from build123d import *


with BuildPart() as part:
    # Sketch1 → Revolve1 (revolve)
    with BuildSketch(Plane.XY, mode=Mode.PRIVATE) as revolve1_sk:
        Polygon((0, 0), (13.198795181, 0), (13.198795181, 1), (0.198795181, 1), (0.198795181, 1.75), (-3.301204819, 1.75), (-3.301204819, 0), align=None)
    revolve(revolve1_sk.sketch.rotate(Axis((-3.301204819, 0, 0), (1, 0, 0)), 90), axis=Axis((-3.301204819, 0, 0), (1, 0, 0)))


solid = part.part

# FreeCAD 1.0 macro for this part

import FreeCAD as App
import Part
import Sketcher
from FreeCAD import Vector
Q = App.Units.Quantity


def add_polygon(sketch, points):
    """Adds a closed chain of lines whose ends are joined by coincident constraints."""
    first, n = sketch.GeometryCount, len(points)
    for a, b in zip(points, points[1:] + points[:1]):
        sketch.addGeometry(Part.LineSegment(App.Vector(*a, 0), App.Vector(*b, 0)), False)
    for i in range(n):
        sketch.addConstraint(Sketcher.Constraint("Coincident", first + i, 2, first + (i + 1) % n, 1))

doc = App.newDocument("Part")
body = doc.addObject("PartDesign::Body", "Body")

sketch1 = body.newObject("Sketcher::SketchObject", "Sketch")
sketch1.AttachmentSupport = (doc.getObject("XY_Plane"), [""])
sketch1.MapMode = "FlatFace"
add_polygon(sketch1, [(13.2, 0), (13.2, 1), (0.2, 1), (0.2, 1.8), (-3.3, 1.8), (-3.3, 0)])
sketch1.addConstraint([
    Sketcher.Constraint("Vertical", 0),
    Sketcher.Constraint("Horizontal", 1),
    Sketcher.Constraint("Vertical", 2),
    Sketcher.Constraint("Horizontal", 3),
    Sketcher.Constraint("Vertical", 4),
    Sketcher.Constraint("Horizontal", 5),
    Sketcher.Constraint("PointOnObject", 4, 2, -1),
    Sketcher.Constraint("DistanceX", 1, 2, 1, 1, Q("13 mm")),
    Sketcher.Constraint("DistanceY", 0, 1, 0, 2, Q("1 mm")),
    Sketcher.Constraint("DistanceX", 3, 2, 3, 1, Q("3.5 mm")),
    Sketcher.Constraint("DistanceY", 2, 1, 2, 2, Q("0.75 mm")),
    Sketcher.Constraint("DistanceX", -1, 1, 0, 2, Q("13.198795 mm")),
])
revolution = body.newObject("PartDesign::Revolution", "Revolution")
revolution.Profile = sketch1
revolution.ReferenceAxis = (sketch1, ["H_Axis"])
revolution.Angle = 360

doc.recompute()
